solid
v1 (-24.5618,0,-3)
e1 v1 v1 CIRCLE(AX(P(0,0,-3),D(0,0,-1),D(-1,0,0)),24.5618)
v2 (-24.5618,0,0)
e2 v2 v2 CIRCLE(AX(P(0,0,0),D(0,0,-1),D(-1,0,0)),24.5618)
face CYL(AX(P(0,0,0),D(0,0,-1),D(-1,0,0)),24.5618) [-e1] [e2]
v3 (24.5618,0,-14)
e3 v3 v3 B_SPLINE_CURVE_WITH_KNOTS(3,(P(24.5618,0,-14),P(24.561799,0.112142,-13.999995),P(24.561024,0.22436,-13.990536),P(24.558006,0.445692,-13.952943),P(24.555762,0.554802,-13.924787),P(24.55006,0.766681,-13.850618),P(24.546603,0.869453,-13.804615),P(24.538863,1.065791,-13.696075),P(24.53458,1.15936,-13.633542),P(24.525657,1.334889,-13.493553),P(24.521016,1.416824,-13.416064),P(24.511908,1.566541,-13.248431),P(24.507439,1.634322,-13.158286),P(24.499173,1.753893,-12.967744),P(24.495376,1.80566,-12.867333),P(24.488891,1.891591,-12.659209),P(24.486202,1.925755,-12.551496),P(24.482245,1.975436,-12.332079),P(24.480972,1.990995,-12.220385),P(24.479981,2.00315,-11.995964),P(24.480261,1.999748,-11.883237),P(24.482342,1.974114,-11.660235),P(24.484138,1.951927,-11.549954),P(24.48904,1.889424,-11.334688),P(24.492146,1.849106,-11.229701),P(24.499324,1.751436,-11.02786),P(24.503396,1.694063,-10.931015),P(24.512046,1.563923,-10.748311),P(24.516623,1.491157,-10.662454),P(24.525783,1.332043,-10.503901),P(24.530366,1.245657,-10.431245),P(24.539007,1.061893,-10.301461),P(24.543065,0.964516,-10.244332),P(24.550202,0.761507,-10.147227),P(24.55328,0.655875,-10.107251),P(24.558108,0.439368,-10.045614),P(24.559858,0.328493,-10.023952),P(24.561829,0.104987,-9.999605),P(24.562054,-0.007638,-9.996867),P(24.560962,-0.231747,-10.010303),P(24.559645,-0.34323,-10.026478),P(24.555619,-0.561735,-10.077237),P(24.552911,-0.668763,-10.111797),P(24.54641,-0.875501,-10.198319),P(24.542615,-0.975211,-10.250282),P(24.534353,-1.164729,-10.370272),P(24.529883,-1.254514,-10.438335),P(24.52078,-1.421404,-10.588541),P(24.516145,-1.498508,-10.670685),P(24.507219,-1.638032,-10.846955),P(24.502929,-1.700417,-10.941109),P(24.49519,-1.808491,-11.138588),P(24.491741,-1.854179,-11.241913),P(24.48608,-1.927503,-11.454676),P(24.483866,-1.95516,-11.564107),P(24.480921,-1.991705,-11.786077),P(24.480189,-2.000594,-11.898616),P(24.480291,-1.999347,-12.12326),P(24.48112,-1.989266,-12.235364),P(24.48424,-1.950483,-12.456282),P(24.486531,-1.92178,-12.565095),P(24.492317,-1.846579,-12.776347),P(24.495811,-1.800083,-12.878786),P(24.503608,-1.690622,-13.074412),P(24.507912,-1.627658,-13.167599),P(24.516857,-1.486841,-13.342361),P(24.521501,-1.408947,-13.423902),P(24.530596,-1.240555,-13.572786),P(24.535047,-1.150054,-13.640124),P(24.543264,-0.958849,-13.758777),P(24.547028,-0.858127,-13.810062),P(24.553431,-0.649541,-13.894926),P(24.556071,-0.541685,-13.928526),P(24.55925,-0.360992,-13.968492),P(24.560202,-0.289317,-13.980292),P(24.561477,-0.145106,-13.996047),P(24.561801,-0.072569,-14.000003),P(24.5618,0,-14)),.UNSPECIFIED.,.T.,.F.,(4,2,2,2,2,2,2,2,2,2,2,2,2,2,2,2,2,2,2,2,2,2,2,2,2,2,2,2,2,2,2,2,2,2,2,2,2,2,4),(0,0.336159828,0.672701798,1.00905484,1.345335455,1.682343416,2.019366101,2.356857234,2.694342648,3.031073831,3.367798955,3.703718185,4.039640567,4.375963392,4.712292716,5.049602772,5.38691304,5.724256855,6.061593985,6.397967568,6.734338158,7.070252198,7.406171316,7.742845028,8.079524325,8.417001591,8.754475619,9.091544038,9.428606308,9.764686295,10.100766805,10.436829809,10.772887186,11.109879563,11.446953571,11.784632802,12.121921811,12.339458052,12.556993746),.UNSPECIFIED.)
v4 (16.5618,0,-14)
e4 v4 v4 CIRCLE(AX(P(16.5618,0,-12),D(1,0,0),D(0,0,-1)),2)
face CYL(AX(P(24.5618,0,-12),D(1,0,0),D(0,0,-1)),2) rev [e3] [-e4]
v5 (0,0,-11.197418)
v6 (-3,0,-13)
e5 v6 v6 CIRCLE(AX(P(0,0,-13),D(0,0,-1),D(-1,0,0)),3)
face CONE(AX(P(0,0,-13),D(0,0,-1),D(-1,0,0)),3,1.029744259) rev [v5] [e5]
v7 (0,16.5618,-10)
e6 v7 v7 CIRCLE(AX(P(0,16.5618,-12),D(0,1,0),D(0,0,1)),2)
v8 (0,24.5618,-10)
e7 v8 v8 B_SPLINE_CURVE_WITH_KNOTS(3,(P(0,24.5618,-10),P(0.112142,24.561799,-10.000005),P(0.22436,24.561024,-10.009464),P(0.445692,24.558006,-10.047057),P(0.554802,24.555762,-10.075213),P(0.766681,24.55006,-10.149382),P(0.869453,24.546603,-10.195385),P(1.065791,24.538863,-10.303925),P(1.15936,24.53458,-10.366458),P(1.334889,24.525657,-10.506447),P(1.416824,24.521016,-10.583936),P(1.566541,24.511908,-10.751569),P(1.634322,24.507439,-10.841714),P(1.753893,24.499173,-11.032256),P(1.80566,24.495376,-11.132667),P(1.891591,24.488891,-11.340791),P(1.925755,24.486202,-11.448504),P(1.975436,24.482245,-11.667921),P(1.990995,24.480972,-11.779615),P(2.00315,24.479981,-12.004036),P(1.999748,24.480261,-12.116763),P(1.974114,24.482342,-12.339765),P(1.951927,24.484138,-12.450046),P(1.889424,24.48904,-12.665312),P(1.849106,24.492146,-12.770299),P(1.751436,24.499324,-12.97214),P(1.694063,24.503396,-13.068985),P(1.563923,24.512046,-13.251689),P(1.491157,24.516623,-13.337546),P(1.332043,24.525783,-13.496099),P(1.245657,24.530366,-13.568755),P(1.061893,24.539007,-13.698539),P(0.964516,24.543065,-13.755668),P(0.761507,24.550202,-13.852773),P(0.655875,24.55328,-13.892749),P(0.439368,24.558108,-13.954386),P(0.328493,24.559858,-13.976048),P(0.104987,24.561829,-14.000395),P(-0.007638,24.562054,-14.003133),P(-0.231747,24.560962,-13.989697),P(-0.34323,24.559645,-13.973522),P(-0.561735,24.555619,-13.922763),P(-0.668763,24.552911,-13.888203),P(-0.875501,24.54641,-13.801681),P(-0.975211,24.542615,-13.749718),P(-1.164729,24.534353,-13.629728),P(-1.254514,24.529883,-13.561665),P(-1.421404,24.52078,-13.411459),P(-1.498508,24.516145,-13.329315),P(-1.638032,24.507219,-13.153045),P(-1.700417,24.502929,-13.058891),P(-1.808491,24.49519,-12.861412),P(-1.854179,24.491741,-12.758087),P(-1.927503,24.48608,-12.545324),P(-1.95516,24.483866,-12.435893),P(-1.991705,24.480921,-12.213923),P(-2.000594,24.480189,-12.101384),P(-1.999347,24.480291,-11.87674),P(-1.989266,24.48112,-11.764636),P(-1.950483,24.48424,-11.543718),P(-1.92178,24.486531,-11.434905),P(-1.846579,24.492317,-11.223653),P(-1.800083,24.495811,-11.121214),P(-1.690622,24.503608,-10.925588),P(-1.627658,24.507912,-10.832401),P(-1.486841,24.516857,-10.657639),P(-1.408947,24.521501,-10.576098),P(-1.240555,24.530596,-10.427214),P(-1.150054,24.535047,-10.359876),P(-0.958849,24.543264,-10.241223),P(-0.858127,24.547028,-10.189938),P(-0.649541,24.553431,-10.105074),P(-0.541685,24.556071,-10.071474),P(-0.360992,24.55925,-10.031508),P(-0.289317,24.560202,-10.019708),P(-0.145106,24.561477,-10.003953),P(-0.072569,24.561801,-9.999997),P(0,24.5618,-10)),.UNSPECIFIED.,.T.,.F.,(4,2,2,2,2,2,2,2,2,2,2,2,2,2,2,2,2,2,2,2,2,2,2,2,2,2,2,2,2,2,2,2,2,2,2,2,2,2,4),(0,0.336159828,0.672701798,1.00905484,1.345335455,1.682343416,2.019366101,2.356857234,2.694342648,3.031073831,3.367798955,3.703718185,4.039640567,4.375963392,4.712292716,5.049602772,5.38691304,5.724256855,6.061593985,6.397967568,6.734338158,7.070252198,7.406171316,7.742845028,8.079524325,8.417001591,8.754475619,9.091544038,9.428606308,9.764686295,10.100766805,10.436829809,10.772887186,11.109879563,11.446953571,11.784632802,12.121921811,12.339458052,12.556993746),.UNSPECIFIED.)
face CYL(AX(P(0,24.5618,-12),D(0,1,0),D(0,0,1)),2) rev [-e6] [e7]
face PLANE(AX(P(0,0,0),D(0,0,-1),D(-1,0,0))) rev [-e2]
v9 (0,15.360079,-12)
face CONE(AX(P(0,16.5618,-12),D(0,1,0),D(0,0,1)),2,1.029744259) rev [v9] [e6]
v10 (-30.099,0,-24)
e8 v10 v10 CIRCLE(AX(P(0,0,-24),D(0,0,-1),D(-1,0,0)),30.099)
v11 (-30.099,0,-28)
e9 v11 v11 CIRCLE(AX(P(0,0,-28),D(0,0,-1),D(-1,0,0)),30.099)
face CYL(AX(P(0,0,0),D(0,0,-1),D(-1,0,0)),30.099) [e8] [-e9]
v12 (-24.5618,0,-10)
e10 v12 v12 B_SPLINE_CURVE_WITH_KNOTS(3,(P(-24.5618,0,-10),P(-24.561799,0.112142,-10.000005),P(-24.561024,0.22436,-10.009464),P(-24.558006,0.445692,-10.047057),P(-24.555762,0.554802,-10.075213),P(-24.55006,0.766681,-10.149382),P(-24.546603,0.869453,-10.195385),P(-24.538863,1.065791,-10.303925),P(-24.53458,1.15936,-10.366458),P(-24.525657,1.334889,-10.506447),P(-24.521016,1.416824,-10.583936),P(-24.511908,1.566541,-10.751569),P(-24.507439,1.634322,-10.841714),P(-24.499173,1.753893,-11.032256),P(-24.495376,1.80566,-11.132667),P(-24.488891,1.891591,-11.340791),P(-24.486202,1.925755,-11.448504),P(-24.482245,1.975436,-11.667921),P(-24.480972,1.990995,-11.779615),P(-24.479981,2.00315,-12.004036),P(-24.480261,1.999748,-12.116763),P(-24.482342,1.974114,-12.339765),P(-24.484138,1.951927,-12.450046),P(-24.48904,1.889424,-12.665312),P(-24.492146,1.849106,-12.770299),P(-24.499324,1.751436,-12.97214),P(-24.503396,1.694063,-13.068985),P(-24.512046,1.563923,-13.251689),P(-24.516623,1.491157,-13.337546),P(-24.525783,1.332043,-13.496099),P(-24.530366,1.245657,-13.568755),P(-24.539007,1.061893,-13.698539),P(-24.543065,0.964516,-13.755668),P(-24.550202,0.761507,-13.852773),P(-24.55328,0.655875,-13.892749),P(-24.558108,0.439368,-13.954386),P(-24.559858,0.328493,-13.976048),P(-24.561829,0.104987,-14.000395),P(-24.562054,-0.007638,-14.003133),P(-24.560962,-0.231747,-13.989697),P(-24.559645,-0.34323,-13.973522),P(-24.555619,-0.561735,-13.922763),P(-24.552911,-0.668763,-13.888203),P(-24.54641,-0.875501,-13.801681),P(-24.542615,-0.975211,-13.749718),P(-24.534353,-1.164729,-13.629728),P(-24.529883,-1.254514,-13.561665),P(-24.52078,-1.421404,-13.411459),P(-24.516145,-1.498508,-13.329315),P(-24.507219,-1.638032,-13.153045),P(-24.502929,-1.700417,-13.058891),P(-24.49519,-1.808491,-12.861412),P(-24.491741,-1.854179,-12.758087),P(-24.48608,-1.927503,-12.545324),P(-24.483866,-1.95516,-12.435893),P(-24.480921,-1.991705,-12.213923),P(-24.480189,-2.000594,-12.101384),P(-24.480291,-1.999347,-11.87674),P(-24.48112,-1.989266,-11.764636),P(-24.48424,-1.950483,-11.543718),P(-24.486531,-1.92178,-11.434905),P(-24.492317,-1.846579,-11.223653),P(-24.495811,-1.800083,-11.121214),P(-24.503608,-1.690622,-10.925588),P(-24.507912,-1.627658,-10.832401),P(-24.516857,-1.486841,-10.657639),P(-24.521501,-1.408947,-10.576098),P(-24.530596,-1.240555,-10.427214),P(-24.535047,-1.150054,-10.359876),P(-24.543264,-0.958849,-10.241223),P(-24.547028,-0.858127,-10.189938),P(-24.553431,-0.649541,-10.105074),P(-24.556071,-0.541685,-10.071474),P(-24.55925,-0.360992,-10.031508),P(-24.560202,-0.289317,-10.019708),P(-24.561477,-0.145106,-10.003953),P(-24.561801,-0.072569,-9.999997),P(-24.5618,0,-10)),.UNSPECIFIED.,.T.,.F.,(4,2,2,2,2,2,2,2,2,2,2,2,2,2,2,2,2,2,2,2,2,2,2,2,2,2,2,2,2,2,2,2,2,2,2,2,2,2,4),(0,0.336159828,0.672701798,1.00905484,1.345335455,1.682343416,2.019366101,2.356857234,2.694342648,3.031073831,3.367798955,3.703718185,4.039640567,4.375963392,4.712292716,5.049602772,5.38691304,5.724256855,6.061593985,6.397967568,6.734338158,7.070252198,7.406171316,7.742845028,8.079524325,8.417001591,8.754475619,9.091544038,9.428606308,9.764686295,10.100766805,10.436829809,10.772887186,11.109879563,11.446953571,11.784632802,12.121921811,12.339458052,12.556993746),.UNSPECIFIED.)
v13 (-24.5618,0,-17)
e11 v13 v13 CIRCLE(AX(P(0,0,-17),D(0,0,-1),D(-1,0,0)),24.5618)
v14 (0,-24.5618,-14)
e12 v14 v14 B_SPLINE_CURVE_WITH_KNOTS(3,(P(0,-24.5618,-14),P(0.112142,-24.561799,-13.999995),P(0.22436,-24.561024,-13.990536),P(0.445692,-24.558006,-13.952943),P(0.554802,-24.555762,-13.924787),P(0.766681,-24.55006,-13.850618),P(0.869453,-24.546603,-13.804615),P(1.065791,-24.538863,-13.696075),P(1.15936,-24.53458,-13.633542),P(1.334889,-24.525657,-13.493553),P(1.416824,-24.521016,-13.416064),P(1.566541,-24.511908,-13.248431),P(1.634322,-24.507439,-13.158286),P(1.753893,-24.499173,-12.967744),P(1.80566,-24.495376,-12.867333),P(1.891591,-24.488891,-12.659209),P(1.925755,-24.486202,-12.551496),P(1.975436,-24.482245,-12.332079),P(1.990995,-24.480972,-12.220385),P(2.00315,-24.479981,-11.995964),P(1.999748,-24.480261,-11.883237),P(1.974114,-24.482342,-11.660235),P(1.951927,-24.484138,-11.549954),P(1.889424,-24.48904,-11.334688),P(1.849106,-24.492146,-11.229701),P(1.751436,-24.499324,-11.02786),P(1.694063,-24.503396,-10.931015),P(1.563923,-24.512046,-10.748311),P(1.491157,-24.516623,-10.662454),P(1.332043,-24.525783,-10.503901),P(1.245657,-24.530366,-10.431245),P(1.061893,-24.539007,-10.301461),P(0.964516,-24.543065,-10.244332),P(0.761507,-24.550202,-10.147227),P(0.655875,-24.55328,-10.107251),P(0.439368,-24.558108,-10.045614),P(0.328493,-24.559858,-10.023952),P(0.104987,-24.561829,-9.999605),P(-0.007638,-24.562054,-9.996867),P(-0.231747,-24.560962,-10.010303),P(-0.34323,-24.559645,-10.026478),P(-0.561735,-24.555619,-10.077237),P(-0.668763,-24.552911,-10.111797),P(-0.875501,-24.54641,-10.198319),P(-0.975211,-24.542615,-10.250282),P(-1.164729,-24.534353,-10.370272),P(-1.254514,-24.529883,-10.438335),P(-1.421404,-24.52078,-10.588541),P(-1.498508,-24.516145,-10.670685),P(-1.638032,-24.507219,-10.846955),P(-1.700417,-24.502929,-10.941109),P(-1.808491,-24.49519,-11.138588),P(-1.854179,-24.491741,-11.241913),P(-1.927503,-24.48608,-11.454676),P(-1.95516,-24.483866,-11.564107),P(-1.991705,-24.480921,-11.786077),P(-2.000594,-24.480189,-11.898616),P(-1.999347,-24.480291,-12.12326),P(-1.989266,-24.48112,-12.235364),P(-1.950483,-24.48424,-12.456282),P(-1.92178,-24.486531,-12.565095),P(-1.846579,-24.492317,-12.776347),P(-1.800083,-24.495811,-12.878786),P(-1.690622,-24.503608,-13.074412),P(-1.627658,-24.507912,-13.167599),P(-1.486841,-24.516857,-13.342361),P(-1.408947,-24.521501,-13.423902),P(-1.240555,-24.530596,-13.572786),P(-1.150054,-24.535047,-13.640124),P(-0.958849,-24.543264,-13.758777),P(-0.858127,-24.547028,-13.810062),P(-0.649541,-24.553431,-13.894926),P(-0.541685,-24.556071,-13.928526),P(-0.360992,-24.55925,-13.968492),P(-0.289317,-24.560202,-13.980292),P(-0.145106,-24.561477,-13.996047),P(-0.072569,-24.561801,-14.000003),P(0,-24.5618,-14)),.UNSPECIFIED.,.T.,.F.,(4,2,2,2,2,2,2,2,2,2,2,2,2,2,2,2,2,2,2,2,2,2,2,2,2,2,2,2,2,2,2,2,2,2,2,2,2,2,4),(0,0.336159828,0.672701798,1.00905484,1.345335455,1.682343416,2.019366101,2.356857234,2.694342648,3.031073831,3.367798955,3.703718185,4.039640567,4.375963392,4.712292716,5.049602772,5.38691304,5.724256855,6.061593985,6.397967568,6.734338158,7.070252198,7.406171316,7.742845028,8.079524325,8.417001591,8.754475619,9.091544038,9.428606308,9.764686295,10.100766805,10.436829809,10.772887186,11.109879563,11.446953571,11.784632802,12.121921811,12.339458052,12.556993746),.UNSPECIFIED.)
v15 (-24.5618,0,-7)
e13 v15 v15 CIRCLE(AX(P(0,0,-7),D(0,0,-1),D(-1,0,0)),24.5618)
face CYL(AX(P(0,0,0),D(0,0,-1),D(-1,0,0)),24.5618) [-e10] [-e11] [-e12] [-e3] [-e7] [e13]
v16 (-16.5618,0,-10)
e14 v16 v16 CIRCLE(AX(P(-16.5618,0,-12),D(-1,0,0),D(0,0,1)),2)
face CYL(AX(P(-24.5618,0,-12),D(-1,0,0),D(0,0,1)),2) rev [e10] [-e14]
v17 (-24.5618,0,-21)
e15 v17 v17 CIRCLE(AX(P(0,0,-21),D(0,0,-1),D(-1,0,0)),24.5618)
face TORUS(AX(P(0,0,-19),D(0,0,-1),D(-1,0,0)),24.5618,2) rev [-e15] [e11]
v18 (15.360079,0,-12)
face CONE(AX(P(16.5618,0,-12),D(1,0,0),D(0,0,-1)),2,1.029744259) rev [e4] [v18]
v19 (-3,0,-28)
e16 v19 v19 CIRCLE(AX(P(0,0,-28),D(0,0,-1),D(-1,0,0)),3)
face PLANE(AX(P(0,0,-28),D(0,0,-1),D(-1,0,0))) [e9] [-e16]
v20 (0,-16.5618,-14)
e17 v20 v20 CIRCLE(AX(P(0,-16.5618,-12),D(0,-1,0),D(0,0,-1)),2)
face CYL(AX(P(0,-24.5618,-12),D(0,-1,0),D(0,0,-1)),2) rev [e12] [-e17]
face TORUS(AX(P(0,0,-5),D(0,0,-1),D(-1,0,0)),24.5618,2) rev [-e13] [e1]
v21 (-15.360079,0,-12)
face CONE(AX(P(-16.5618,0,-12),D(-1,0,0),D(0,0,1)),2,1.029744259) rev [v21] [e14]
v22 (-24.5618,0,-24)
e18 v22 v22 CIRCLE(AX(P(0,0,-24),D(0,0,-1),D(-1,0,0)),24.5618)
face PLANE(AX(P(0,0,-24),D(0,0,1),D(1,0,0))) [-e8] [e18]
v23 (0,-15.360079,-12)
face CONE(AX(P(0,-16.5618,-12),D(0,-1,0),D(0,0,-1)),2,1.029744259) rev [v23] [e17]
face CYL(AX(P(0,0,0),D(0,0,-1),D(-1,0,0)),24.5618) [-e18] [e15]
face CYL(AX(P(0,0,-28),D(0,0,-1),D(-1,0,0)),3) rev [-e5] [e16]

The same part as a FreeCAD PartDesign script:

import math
import FreeCAD as App
import Part
import Sketcher
from FreeCAD import Vector

doc = App.newDocument("Part")
body = doc.addObject("PartDesign::Body", "Body")

sketch1 = doc.addObject("Sketcher::SketchObject", "Sketch")
body.addObject(sketch1)
sketch1.AttachmentSupport = (doc.XZ_Plane, [""])
sketch1.MapMode = "FlatFace"
sketch1.addGeometry([
    Part.LineSegment(Vector(0, -28, 0), Vector(0, 0, 0)),
    Part.LineSegment(Vector(0, 0, 0), Vector(24.6, 0, 0)),
    Part.LineSegment(Vector(24.6, 0, 0), Vector(24.6, -3, 0)),
    Part.ArcOfCircle(Part.Circle(Vector(24.6, -5, 0), Vector(0, 0, 1), 2), math.radians(90), math.radians(270)),
    Part.LineSegment(Vector(24.6, -7, 0), Vector(24.6, -17, 0)),
    Part.ArcOfCircle(Part.Circle(Vector(24.6, -19, 0), Vector(0, 0, 1), 2), math.radians(90), math.radians(270)),
    Part.LineSegment(Vector(24.6, -21, 0), Vector(24.6, -24, 0)),
    Part.LineSegment(Vector(24.6, -24, 0), Vector(30.1, -24, 0)),
    Part.LineSegment(Vector(30.1, -24, 0), Vector(30.1, -28, 0)),
    Part.LineSegment(Vector(30.1, -28, 0), Vector(0, -28, 0)),
], False)
sketch1.addConstraint([
    Sketcher.Constraint("Coincident", 0, 2, 1, 1),
    Sketcher.Constraint("Coincident", 1, 2, 2, 1),
    Sketcher.Constraint("Coincident", 2, 2, 3, 1),
    Sketcher.Constraint("Coincident", 3, 2, 4, 1),
    Sketcher.Constraint("Coincident", 4, 2, 5, 1),
    Sketcher.Constraint("Coincident", 5, 2, 6, 1),
    Sketcher.Constraint("Coincident", 6, 2, 7, 1),
    Sketcher.Constraint("Coincident", 7, 2, 8, 1),
    Sketcher.Constraint("Coincident", 8, 2, 9, 1),
    Sketcher.Constraint("Coincident", 9, 2, 0, 1),
    Sketcher.Constraint("Vertical", 0),
    Sketcher.Constraint("Horizontal", 1),
    Sketcher.Constraint("Vertical", 2),
    Sketcher.Constraint("Vertical", 4),
    Sketcher.Constraint("Vertical", 6),
    Sketcher.Constraint("Horizontal", 7),
    Sketcher.Constraint("Vertical", 8),
    Sketcher.Constraint("Horizontal", 9),
    Sketcher.Constraint("Coincident", 0, 2, -1, 1),
    Sketcher.Constraint("Equal", 3, 5),
    Sketcher.Constraint("Vertical", 3, 3, 5, 3),
    Sketcher.Constraint("Vertical", 5, 3, 1, 2),
    Sketcher.Constraint("Vertical", 2, 2, 3, 2),
    Sketcher.Constraint("Vertical", 4, 2, 5, 2),
    Sketcher.Constraint("Equal", 2, 6),
    Sketcher.Constraint("Radius", 3, 2.0),
    Sketcher.Constraint("DistanceY", 0, 1, 0, 2, 28.0),
    Sketcher.Constraint("DistanceY", 2, 2, 2, 1, 3.0),
    Sketcher.Constraint("DistanceY", 4, 2, 4, 1, 10.0),
    Sketcher.Constraint("DistanceX", 9, 2, 9, 1, 30.099),
    Sketcher.Constraint("DistanceX", 1, 1, 1, 2, 24.5618),
])
revolution = doc.addObject("PartDesign::Revolution", "Revolution")
body.addObject(revolution)
revolution.Profile = sketch1
revolution.ReferenceAxis = (sketch1, ["V_Axis"])
revolution.Angle = 360

sketch2 = doc.addObject("Sketcher::SketchObject", "Sketch001")
body.addObject(sketch2)
sketch2.AttachmentSupport = (doc.XZ_Plane, [""])
sketch2.MapMode = "FlatFace"
sketch2.AttachmentOffset = App.Placement(Vector(0, 0, -24.5618), App.Rotation())
sketch2.addGeometry(Part.Circle(Vector(0, -12, 0), Vector(0, 0, 1), 2), False)
sketch2.addConstraint([
    Sketcher.Constraint("PointOnObject", 0, 3, -2),
    Sketcher.Constraint("Diameter", 0, 4.0),
    Sketcher.Constraint("DistanceY", 0, 3, -1, 1, 12.0),
])
doc.recompute()
hole = doc.addObject("PartDesign::Hole", "Hole")
body.addObject(hole)
hole.Profile = sketch2
hole.ThreadType = "None"
hole.Diameter = 4
hole.DepthType = "Dimension"
hole.Depth = 8
hole.DrillPoint = "Angled"
hole.DrillPointAngle = 118
hole.Reversed = True

sketch3 = doc.addObject("Sketcher::SketchObject", "Sketch002")
body.addObject(sketch3)
sketch3.AttachmentSupport = (doc.YZ_Plane, [""])
sketch3.MapMode = "FlatFace"
sketch3.AttachmentOffset = App.Placement(Vector(0, 0, 24.5618), App.Rotation())
sketch3.addGeometry(Part.Circle(Vector(0, -12, 0), Vector(0, 0, 1), 2), False)
sketch3.addConstraint([
    Sketcher.Constraint("PointOnObject", 0, 3, -2),
    Sketcher.Constraint("Diameter", 0, 4.0),
    Sketcher.Constraint("DistanceY", 0, 3, -1, 1, 12.0),
])
doc.recompute()
hole2 = doc.addObject("PartDesign::Hole", "Hole001")
body.addObject(hole2)
hole2.Profile = sketch3
hole2.ThreadType = "None"
hole2.Diameter = 4
hole2.DepthType = "Dimension"
hole2.Depth = 8
hole2.DrillPoint = "Angled"
hole2.DrillPointAngle = 118

sketch4 = doc.addObject("Sketcher::SketchObject", "Sketch003")
body.addObject(sketch4)
sketch4.AttachmentSupport = (doc.XZ_Plane, [""])
sketch4.MapMode = "FlatFace"
sketch4.AttachmentOffset = App.Placement(Vector(0, 0, 24.5618), App.Rotation())
sketch4.addGeometry(Part.Circle(Vector(0, -12, 0), Vector(0, 0, 1), 2), False)
sketch4.addConstraint([
    Sketcher.Constraint("PointOnObject", 0, 3, -2),
    Sketcher.Constraint("Diameter", 0, 4.0),
    Sketcher.Constraint("DistanceY", 0, 3, -1, 1, 12.0),
])
doc.recompute()
hole3 = doc.addObject("PartDesign::Hole", "Hole002")
body.addObject(hole3)
hole3.Profile = sketch4
hole3.ThreadType = "None"
hole3.Diameter = 4
hole3.DepthType = "Dimension"
hole3.Depth = 8
hole3.DrillPoint = "Angled"
hole3.DrillPointAngle = 118

sketch5 = doc.addObject("Sketcher::SketchObject", "Sketch004")
body.addObject(sketch5)
sketch5.AttachmentSupport = (doc.YZ_Plane, [""])
sketch5.MapMode = "FlatFace"
sketch5.AttachmentOffset = App.Placement(Vector(0, 0, -24.5618), App.Rotation())
sketch5.addGeometry(Part.Circle(Vector(0, -12, 0), Vector(0, 0, 1), 2), False)
sketch5.addConstraint([
    Sketcher.Constraint("PointOnObject", 0, 3, -2),
    Sketcher.Constraint("Diameter", 0, 4.0),
    Sketcher.Constraint("DistanceY", 0, 3, -1, 1, 12.0),
])
doc.recompute()
hole4 = doc.addObject("PartDesign::Hole", "Hole003")
body.addObject(hole4)
hole4.Profile = sketch5
hole4.ThreadType = "None"
hole4.Diameter = 4
hole4.DepthType = "Dimension"
hole4.Depth = 8
hole4.DrillPoint = "Angled"
hole4.DrillPointAngle = 118
hole4.Reversed = True

sketch6 = doc.addObject("Sketcher::SketchObject", "Sketch005")
body.addObject(sketch6)
sketch6.AttachmentSupport = (doc.XY_Plane, [""])
sketch6.MapMode = "FlatFace"
sketch6.AttachmentOffset = App.Placement(Vector(0, 0, -28), App.Rotation())
sketch6.addGeometry(Part.Circle(Vector(0, 0, 0), Vector(0, 0, 1), 3), False)
sketch6.addConstraint([
    Sketcher.Constraint("Coincident", 0, 3, -1, 1),
    Sketcher.Constraint("Diameter", 0, 6.0),
])
doc.recompute()
hole5 = doc.addObject("PartDesign::Hole", "Hole004")
body.addObject(hole5)
hole5.Profile = sketch6
hole5.ThreadType = "None"
hole5.Diameter = 6
hole5.DepthType = "Dimension"
hole5.Depth = 15
hole5.DrillPoint = "Angled"
hole5.DrillPointAngle = 118
hole5.Reversed = True

doc.recompute()
